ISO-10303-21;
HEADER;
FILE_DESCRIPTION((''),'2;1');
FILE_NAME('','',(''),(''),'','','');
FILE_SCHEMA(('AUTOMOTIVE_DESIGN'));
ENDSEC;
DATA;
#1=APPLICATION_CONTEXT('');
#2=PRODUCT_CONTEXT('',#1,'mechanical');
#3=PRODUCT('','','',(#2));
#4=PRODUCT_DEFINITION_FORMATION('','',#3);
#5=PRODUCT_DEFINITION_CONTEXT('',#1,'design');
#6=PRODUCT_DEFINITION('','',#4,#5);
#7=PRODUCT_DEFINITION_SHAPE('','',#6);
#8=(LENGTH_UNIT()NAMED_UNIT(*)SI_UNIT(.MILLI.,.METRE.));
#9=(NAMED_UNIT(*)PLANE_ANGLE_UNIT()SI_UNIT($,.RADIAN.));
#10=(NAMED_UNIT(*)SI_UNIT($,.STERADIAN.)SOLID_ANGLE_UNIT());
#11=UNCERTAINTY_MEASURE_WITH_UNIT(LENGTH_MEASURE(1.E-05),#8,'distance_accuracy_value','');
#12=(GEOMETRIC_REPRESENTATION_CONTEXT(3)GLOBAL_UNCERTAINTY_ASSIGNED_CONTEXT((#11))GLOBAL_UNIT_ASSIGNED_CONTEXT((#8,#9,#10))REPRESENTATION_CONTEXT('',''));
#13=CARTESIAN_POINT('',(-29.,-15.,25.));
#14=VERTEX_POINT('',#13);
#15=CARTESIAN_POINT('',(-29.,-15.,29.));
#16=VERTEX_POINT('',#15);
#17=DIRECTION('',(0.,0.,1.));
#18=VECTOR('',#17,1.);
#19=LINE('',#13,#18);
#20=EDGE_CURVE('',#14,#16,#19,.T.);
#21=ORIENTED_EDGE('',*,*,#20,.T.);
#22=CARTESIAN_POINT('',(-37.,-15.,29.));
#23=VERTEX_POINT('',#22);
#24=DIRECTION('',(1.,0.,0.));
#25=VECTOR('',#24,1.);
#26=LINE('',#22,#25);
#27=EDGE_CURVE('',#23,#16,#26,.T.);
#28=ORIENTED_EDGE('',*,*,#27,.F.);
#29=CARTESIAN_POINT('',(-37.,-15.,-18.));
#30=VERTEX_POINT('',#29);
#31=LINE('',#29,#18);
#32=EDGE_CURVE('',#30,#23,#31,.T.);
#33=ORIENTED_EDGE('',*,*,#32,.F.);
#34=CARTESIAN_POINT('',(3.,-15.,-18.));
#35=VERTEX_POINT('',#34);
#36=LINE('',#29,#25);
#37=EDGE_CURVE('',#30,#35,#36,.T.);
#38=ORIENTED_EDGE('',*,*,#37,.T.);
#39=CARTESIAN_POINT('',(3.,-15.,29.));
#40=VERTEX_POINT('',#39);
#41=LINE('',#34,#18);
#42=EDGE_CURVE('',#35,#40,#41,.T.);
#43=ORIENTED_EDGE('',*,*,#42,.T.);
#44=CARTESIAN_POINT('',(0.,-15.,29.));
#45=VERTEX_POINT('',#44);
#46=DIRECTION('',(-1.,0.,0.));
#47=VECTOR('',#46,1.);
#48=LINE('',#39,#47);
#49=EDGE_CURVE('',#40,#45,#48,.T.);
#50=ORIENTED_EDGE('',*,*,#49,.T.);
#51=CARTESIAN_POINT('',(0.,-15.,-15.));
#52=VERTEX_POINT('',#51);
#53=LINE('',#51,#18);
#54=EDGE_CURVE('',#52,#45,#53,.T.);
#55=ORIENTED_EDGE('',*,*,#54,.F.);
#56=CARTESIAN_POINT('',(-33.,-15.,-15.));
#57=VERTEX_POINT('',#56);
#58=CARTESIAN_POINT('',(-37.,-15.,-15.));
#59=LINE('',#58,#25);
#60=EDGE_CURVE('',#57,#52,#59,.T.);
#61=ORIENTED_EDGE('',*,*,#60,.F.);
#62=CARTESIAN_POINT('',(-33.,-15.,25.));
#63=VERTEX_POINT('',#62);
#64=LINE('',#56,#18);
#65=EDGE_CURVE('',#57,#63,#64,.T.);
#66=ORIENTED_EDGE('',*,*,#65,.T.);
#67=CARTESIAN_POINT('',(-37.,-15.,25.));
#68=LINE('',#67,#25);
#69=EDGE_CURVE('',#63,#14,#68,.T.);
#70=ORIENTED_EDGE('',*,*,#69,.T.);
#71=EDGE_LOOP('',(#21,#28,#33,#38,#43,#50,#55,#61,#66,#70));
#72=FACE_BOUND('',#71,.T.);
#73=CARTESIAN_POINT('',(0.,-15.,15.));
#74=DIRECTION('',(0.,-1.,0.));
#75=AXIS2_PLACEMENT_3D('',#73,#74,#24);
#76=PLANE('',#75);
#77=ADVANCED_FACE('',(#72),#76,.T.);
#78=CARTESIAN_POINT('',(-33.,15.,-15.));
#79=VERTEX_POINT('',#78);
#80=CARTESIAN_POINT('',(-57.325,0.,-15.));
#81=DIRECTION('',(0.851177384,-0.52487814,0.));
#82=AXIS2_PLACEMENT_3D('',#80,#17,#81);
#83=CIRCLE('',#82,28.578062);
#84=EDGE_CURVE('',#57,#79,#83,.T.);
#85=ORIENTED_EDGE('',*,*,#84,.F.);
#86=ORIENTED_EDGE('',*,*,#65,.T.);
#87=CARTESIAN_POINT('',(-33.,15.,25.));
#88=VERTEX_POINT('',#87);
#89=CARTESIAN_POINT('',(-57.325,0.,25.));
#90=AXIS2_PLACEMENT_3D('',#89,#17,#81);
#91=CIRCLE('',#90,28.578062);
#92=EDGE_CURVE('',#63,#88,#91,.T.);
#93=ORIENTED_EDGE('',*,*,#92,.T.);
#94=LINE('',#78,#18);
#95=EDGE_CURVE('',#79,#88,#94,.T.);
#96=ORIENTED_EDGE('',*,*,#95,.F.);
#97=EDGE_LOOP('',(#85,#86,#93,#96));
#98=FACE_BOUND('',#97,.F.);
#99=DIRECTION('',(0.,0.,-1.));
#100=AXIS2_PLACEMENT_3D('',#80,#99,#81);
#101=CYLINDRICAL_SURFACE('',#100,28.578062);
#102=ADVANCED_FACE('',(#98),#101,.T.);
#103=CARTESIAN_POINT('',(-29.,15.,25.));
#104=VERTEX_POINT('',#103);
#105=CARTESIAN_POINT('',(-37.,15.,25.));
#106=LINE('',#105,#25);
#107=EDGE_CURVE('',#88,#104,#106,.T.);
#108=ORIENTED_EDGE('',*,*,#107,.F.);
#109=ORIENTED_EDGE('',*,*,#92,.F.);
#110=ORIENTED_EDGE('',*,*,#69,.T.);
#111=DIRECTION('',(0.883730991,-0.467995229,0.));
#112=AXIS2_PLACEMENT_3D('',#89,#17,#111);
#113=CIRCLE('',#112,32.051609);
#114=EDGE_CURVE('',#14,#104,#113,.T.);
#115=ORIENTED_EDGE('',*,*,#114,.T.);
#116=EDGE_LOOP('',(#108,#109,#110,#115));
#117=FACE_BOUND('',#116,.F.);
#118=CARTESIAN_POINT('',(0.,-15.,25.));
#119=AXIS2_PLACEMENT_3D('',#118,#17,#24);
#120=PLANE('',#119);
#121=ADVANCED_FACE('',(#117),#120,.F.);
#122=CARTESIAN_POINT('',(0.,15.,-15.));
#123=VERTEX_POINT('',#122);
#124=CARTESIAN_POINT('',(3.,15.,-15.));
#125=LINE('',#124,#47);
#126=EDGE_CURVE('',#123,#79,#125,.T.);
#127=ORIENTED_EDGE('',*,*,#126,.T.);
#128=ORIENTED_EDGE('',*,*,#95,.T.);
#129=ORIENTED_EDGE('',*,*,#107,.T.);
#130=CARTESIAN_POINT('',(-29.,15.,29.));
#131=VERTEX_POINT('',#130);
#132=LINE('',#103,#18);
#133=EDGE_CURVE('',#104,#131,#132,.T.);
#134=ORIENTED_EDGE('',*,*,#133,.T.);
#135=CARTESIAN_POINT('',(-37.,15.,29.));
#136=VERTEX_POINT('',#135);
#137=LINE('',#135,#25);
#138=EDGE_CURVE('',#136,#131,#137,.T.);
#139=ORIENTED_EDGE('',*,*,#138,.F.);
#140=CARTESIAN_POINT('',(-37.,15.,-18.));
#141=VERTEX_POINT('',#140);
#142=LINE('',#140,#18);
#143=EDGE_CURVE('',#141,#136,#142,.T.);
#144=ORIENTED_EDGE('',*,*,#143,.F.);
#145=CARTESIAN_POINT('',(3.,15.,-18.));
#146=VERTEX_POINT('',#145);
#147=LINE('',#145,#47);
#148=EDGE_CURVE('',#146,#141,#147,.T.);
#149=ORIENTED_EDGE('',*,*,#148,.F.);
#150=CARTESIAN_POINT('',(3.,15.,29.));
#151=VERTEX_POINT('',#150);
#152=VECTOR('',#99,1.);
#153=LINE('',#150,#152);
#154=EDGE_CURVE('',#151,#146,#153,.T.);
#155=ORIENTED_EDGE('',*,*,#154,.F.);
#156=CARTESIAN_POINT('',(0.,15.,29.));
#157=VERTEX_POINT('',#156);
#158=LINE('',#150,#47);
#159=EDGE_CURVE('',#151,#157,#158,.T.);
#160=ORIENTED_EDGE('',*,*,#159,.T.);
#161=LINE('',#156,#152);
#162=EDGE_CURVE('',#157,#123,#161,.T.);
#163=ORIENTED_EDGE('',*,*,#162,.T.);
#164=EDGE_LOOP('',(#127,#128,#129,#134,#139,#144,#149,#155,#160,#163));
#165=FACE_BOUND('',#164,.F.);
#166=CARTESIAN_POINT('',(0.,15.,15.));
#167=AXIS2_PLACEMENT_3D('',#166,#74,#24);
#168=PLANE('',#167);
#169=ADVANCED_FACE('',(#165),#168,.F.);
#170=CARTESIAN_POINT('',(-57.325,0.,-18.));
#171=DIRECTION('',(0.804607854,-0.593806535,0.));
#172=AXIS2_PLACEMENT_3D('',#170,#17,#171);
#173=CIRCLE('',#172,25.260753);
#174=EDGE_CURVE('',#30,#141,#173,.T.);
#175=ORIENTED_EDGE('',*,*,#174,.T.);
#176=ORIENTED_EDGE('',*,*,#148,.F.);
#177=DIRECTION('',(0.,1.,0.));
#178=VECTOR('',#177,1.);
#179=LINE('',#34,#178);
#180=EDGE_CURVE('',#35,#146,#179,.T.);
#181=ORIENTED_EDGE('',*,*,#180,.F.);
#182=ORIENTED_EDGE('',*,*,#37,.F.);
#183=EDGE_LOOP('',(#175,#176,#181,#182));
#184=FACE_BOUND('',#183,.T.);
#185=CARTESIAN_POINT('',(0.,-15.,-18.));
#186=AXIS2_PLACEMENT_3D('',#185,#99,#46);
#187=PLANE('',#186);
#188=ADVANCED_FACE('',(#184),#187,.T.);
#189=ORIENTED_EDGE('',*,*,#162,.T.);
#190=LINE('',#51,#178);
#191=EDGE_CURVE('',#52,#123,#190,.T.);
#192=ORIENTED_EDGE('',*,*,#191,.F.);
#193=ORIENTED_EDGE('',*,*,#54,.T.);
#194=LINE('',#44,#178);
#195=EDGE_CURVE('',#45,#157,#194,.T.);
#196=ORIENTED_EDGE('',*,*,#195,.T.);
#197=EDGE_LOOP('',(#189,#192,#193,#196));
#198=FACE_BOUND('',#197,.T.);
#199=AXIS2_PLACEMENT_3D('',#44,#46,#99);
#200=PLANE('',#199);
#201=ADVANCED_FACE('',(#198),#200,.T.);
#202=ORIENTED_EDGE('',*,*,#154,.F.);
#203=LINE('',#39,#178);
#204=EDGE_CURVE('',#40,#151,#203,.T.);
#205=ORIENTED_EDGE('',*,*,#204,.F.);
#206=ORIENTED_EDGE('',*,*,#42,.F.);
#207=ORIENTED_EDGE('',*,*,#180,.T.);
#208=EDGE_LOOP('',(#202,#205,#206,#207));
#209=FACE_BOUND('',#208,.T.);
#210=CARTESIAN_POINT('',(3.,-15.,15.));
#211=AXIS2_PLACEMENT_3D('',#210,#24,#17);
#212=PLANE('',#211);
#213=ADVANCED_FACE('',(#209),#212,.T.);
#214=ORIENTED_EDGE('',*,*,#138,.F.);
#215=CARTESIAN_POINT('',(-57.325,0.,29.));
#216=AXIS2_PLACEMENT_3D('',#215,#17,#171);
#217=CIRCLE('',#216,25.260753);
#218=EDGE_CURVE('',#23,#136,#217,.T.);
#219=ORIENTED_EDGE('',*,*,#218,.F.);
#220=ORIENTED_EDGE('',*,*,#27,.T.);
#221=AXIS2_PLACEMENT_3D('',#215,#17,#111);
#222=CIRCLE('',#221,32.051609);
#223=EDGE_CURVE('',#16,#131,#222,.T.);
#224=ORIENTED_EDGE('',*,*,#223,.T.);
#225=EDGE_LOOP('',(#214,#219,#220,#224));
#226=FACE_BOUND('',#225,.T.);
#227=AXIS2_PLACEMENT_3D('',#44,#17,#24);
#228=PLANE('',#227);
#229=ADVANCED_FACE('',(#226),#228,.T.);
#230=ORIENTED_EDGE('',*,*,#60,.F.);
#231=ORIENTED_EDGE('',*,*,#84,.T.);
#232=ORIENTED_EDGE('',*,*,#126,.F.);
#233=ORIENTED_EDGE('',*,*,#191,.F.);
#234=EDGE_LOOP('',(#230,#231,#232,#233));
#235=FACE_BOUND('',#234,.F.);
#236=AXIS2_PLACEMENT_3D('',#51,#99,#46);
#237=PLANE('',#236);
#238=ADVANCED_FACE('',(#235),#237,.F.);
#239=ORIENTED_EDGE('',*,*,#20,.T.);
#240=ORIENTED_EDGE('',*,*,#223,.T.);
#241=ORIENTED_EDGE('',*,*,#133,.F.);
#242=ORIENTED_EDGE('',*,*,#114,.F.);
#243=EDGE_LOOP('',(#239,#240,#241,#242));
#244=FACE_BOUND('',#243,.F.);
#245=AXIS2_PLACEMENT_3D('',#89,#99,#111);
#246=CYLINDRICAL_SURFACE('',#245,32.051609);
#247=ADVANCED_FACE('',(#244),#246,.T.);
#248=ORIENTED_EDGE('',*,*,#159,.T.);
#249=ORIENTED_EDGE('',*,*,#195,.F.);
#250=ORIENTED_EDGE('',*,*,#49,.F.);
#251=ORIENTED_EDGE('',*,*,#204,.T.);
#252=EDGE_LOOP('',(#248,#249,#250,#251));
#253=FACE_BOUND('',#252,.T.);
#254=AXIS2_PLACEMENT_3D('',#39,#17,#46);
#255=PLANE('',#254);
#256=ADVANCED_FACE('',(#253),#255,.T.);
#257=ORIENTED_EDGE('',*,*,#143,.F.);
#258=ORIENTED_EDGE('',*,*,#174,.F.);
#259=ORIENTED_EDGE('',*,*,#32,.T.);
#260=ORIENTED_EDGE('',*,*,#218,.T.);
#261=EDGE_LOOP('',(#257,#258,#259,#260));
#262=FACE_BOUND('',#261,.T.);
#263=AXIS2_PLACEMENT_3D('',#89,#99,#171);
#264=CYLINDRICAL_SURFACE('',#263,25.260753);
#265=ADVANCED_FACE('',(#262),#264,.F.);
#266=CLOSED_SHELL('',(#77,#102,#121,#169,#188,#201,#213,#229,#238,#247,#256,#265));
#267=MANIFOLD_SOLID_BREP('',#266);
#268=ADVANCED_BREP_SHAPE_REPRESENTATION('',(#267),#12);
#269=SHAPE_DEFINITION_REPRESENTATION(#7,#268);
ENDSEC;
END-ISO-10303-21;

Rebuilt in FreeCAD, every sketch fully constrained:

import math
import FreeCAD as App
import Part
import Sketcher


def add_polygon(sketch, points):
    """Adds a closed chain of lines whose ends are joined by coincident constraints."""
    first, n = sketch.GeometryCount, len(points)
    for a, b in zip(points, points[1:] + points[:1]):
        sketch.addGeometry(Part.LineSegment(App.Vector(*a, 0), App.Vector(*b, 0)), False)
    for i in range(n):
        sketch.addConstraint(Sketcher.Constraint("Coincident", first + i, 2, first + (i + 1) % n, 1))

doc = App.newDocument("Part")
params = doc.addObject("Spreadsheet::Sheet", "Params")
for row, (alias, value) in enumerate([
    ("sketch1_width", "30 mm"),
    ("pad1_length", "3 mm"),
    ("sketch2_width", "40 mm"),
    ("sketch2_height", "30 mm"),
    ("pad2_length", "3 mm"),
    ("sketch3_height", "30 mm"),
    ("pocket1_length", "3 mm"),
    ("sketch4_width", "4 mm"),
    ("pad3_length", "40 mm"),
    ("sketch5_width", "8 mm"),
    ("pad4_length", "4 mm"),
    ("sketch6_height", "14 mm"),
    ("sketch6_width", "3 mm"),
    ("pad5_length", "30 mm"),
], start=1):
    params.set(f"A{row}", alias)
    params.set(f"B{row}", "=" + value)
    params.setAlias(f"B{row}", alias)

body = doc.addObject("PartDesign::Body", "Body")

# Sketch on YZ plane
sketch1 = body.newObject("Sketcher::SketchObject", "Sketch")
sketch1.AttachmentSupport = (doc.getObject("YZ_Plane"), [""])
sketch1.MapMode = "FlatFace"
add_polygon(sketch1, [(-15, 15), (-15, -15), (15, -15), (15, 15)])  # lines 0-3
sketch1.addConstraint([
    Sketcher.Constraint("Vertical", 0),
    Sketcher.Constraint("Horizontal", 1),
    Sketcher.Constraint("Vertical", 2),
    Sketcher.Constraint("Horizontal", 3),
    Sketcher.Constraint("Symmetric", 0, 2, 2, 2, -1, 1),
    Sketcher.Constraint("Equal", 3, 0),
    Sketcher.Constraint("DistanceX", 1, 1, 1, 2, 30.0),
])
sketch1.setExpression("Constraints[10]", "Params.sketch1_width")
pad1 = body.newObject("PartDesign::Pad", "Pad")
pad1.Profile = sketch1
pad1.setExpression("Length", "Params.pad1_length")

# Sketch on XY plane
sketch2 = body.newObject("Sketcher::SketchObject", "Sketch001")
sketch2.AttachmentSupport = (doc.getObject("XY_Plane"), [""])
sketch2.MapMode = "FlatFace"
sketch2.AttachmentOffset = App.Placement(App.Vector(0, 0, -15), App.Rotation())
add_polygon(sketch2, [(-37, 15), (3, 15), (3, -15), (-37, -15)])  # lines 0-3
sketch2.addConstraint([
    Sketcher.Constraint("Horizontal", 0),
    Sketcher.Constraint("Vertical", 1),
    Sketcher.Constraint("Horizontal", 2),
    Sketcher.Constraint("Vertical", 3),
    Sketcher.Constraint("DistanceX", 0, 1, 0, 2, 40.0),
    Sketcher.Constraint("DistanceY", 1, 2, 1, 1, 30.0),
    Sketcher.Constraint("DistanceX", -1, 1, 0, 2, 3.0),
    Sketcher.Constraint("DistanceY", -1, 1, 0, 2, 15.0),
])
sketch2.setExpression("Constraints[8]", "Params.sketch2_width")
sketch2.setExpression("Constraints[9]", "Params.sketch2_height")
pad2 = body.newObject("PartDesign::Pad", "Pad001")
pad2.Profile = sketch2
pad2.setExpression("Length", "Params.pad2_length")
pad2.Reversed = True

# Sketch on XY plane
sketch3 = body.newObject("Sketcher::SketchObject", "Sketch002")
sketch3.AttachmentSupport = (doc.getObject("XY_Plane"), [""])
sketch3.MapMode = "FlatFace"
sketch3.AttachmentOffset = App.Placement(App.Vector(0, 0, -15), App.Rotation())
sketch3.addGeometry([
    Part.LineSegment(App.Vector(-37, 15, 0), App.Vector(-37, -15, 0)),
    Part.ArcOfCircle(Part.Circle(App.Vector(-57, 0, 0), App.Vector(0, 0, 1), 25), math.radians(-36), math.radians(36)),
], False)
sketch3.addConstraint([
    Sketcher.Constraint("Coincident", 0, 1, 1, 2),
    Sketcher.Constraint("Coincident", 1, 1, 0, 2),
    Sketcher.Constraint("Vertical", 0),
    Sketcher.Constraint("PointOnObject", 1, 3, -1),
    Sketcher.Constraint("DistanceY", 0, 2, 0, 1, 30.0),
    Sketcher.Constraint("DistanceX", 0, 1, -1, 1, 37.0),
    Sketcher.Constraint("Radius", 1, 25.2608),
])
sketch3.setExpression("Constraints[4]", "Params.sketch3_height")
pocket1 = body.newObject("PartDesign::Pocket", "Pocket")
pocket1.Profile = sketch3
pocket1.setExpression("Length", "Params.pocket1_length")

# Sketch on XY plane
sketch4 = body.newObject("Sketcher::SketchObject", "Sketch003")
sketch4.AttachmentSupport = (doc.getObject("XY_Plane"), [""])
sketch4.MapMode = "FlatFace"
sketch4.AttachmentOffset = App.Placement(App.Vector(0, 0, -15), App.Rotation())
sketch4.addGeometry([
    Part.ArcOfCircle(Part.Circle(App.Vector(-57.3, 0, 0), App.Vector(0, 0, 1), 25.3), math.radians(-36), math.radians(36)),
    Part.LineSegment(App.Vector(-37, -15, 0), App.Vector(-33, -15, 0)),
    Part.ArcOfCircle(Part.Circle(App.Vector(-57.3, 0, 0), App.Vector(0, 0, 1), 28.6), math.radians(-32), math.radians(32)),
    Part.LineSegment(App.Vector(-33, 15, 0), App.Vector(-37, 15, 0)),
], False)
sketch4.addConstraint([
    Sketcher.Constraint("Coincident", 0, 1, 1, 1),
    Sketcher.Constraint("Coincident", 1, 2, 2, 1),
    Sketcher.Constraint("Coincident", 2, 2, 3, 1),
    Sketcher.Constraint("Coincident", 3, 2, 0, 2),
    Sketcher.Constraint("Horizontal", 1),
    Sketcher.Constraint("Horizontal", 3),
    Sketcher.Constraint("Coincident", 2, 3, 0, 3),
    Sketcher.Constraint("Symmetric", 1, 2, 2, 2, -1),
    Sketcher.Constraint("DistanceX", 1, 1, 1, 2, 4.0),
    Sketcher.Constraint("DistanceX", 0, 1, -1, 1, 37.0),
    Sketcher.Constraint("DistanceY", 0, 1, -1, 1, 15.0),
    Sketcher.Constraint("Radius", 2, 28.578),
])
sketch4.setExpression("Constraints[8]", "Params.sketch4_width")
pad3 = body.newObject("PartDesign::Pad", "Pad002")
pad3.Profile = sketch4
pad3.setExpression("Length", "Params.pad3_length")

# Sketch on XY plane
sketch5 = body.newObject("Sketcher::SketchObject", "Sketch004")
sketch5.AttachmentSupport = (doc.getObject("XY_Plane"), [""])
sketch5.MapMode = "FlatFace"
sketch5.AttachmentOffset = App.Placement(App.Vector(0, 0, 25), App.Rotation())
sketch5.addGeometry([
    Part.LineSegment(App.Vector(-29, 15, 0), App.Vector(-37, 15, 0)),
    Part.ArcOfCircle(Part.Circle(App.Vector(-57, 0, 0), App.Vector(0, 0, 1), 25), math.radians(-36), math.radians(36)),
    Part.LineSegment(App.Vector(-37, -15, 0), App.Vector(-29, -15, 0)),
    Part.ArcOfCircle(Part.Circle(App.Vector(-57, 0, 0), App.Vector(0, 0, 1), 32), math.radians(-28), math.radians(28)),
], False)
sketch5.addConstraint([
    Sketcher.Constraint("Coincident", 0, 2, 1, 2),
    Sketcher.Constraint("Coincident", 1, 1, 2, 1),
    Sketcher.Constraint("Coincident", 2, 2, 3, 1),
    Sketcher.Constraint("Coincident", 3, 2, 0, 1),
    Sketcher.Constraint("Horizontal", 0),
    Sketcher.Constraint("Horizontal", 2),
    Sketcher.Constraint("Coincident", 3, 3, 1, 3),
    Sketcher.Constraint("Symmetric", 0, 2, 1, 1, -1),
    Sketcher.Constraint("DistanceX", 0, 2, 0, 1, 8.0),
    Sketcher.Constraint("DistanceX", 0, 2, -1, 1, 37.0),
    Sketcher.Constraint("DistanceY", -1, 1, 0, 2, 15.0),
    Sketcher.Constraint("Radius", 1, 25.2608),
])
sketch5.setExpression("Constraints[8]", "Params.sketch5_width")
pad4 = body.newObject("PartDesign::Pad", "Pad003")
pad4.Profile = sketch5
pad4.setExpression("Length", "Params.pad4_length")

# Sketch on XZ plane
sketch6 = body.newObject("Sketcher::SketchObject", "Sketch005")
sketch6.AttachmentSupport = (doc.getObject("XZ_Plane"), [""])
sketch6.MapMode = "FlatFace"
sketch6.AttachmentOffset = App.Placement(App.Vector(0, 0, 15), App.Rotation())
add_polygon(sketch6, [(0, 15), (3, 15), (3, 29), (0, 29)])  # lines 0-3
sketch6.addConstraint([
    Sketcher.Constraint("Horizontal", 0),
    Sketcher.Constraint("Vertical", 1),
    Sketcher.Constraint("Horizontal", 2),
    Sketcher.Constraint("Vertical", 3),
    Sketcher.Constraint("PointOnObject", 2, 2, -2),
    Sketcher.Constraint("DistanceY", 1, 1, 1, 2, 14.0),
    Sketcher.Constraint("DistanceX", 0, 1, 0, 2, 3.0),
    Sketcher.Constraint("DistanceY", -1, 1, 0, 2, 15.0),
])
sketch6.setExpression("Constraints[9]", "Params.sketch6_height")
sketch6.setExpression("Constraints[10]", "Params.sketch6_width")
pad5 = body.newObject("PartDesign::Pad", "Pad004")
pad5.Profile = sketch6
pad5.setExpression("Length", "Params.pad5_length")
pad5.Reversed = True

doc.recompute()
